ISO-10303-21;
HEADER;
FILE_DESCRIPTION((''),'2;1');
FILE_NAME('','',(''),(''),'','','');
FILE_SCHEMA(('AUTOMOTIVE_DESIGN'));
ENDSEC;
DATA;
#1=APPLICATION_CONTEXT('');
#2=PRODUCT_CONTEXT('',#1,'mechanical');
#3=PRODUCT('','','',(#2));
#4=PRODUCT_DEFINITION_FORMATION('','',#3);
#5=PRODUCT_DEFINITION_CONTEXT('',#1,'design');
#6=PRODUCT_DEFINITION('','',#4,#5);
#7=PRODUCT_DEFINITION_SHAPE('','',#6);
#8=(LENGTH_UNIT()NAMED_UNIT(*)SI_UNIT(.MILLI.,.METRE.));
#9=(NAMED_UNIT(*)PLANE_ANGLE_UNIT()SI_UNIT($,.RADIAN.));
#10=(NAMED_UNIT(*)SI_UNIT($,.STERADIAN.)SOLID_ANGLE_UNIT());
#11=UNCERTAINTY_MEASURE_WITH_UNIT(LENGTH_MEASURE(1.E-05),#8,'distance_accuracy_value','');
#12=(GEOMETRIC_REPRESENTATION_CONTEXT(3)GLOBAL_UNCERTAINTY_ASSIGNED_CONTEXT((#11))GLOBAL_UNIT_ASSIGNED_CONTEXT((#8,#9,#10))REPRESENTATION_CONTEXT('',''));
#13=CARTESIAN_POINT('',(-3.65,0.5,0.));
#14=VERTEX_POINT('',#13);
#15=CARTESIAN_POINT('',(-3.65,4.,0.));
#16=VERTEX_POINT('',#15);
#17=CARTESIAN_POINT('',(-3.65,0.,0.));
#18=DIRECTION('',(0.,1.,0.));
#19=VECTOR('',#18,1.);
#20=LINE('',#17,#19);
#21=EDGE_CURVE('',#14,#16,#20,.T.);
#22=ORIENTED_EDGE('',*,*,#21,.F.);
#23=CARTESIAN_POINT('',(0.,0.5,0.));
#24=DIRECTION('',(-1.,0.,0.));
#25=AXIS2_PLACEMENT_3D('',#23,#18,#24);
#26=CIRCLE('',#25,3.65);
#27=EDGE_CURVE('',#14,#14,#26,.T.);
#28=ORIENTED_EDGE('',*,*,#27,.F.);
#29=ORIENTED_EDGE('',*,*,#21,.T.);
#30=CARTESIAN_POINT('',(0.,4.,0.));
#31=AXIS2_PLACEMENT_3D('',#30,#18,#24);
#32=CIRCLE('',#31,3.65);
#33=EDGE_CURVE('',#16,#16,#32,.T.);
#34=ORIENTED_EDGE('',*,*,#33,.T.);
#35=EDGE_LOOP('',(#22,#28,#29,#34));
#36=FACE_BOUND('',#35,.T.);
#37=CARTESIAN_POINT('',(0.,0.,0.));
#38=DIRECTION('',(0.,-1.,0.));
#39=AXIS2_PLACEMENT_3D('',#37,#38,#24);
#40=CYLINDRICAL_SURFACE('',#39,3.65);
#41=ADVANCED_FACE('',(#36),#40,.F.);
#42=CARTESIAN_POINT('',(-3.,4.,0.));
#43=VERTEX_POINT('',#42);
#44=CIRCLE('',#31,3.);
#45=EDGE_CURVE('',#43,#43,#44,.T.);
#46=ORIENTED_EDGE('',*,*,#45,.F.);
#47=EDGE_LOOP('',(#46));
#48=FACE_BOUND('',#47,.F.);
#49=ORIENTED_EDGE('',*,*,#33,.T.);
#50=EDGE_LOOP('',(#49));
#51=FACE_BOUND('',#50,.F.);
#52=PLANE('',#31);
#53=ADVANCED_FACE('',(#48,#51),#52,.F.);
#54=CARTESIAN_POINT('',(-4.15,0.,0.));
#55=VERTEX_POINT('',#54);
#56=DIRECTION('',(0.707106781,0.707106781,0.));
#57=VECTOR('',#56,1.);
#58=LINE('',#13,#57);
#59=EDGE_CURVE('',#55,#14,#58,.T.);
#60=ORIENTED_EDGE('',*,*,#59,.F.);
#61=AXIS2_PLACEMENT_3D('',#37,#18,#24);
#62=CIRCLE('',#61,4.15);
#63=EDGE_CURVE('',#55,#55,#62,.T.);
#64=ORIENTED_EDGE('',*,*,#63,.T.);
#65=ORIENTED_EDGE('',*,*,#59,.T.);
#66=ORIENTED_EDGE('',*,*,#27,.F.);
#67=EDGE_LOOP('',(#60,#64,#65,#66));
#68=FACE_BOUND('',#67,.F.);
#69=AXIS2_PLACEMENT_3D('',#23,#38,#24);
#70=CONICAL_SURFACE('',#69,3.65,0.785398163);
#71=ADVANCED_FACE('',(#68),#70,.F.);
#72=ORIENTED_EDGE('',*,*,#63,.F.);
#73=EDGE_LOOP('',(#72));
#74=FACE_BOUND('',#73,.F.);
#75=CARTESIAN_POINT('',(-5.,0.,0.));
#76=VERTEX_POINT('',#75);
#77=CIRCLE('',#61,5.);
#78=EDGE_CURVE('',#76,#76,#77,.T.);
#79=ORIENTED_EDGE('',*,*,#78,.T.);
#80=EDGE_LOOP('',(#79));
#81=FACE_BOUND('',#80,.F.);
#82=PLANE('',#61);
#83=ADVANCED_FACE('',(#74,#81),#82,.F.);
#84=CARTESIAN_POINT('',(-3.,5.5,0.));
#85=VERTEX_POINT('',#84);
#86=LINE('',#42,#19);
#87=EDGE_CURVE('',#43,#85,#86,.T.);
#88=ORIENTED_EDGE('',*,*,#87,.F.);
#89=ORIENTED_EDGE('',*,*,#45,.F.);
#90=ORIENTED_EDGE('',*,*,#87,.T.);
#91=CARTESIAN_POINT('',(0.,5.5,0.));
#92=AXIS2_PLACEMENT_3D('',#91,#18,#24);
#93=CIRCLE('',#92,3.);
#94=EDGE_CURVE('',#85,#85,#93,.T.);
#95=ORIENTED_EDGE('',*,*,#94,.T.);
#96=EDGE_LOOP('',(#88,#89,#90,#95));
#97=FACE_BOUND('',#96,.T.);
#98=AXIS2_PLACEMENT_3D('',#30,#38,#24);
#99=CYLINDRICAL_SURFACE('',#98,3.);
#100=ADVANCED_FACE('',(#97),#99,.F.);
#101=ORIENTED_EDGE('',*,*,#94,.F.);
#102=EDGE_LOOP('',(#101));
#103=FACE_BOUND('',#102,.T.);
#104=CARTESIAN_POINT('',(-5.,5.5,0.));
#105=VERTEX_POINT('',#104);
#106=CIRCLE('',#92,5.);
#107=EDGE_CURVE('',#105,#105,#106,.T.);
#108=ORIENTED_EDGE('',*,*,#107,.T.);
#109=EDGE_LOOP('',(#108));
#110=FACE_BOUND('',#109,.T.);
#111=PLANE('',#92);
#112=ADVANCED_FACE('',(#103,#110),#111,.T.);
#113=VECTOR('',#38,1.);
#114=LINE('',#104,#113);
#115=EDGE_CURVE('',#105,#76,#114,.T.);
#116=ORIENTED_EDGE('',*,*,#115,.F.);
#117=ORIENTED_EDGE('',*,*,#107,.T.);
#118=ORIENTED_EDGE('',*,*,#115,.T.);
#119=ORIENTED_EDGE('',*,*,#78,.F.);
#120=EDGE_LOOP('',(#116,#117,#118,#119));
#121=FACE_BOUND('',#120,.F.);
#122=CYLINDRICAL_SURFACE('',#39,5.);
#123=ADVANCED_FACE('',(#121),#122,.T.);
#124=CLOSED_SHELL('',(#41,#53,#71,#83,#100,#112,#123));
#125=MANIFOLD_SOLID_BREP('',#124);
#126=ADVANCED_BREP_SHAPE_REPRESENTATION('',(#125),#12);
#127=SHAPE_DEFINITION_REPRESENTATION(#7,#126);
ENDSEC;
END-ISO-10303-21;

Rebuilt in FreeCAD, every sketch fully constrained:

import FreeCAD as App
import Part
import Sketcher
Q = App.Units.Quantity


def edges_at(feature, points):
    """Names of the edges that pass closest to the given points."""
    edges = feature.Shape.Edges
    near = lambda p: min(range(len(edges)), key=lambda i: edges[i].distToShape(Part.Vertex(*p))[0])
    return sorted({f"Edge{near(p) + 1}" for p in points})

doc = App.newDocument("Part")
body = doc.addObject("PartDesign::Body", "Body")

sketch1 = body.newObject("Sketcher::SketchObject", "Sketch")
sketch1.AttachmentSupport = (doc.getObject("XZ_Plane"), [""])
sketch1.MapMode = "FlatFace"
sketch1.addGeometry(Part.Circle(App.Vector(0, 0, 0), App.Vector(0, 0, 1), 5), False)
sketch1.addGeometry(Part.Circle(App.Vector(0, 0, 0), App.Vector(0, 0, 1), 3.6), False)
sketch1.addConstraint(Sketcher.Constraint("Coincident", 0, 3, -1, 1))
sketch1.addConstraint(Sketcher.Constraint("Coincident", 1, 3, -1, 1))
sketch1.addConstraint(Sketcher.Constraint("Diameter", 0, Q("10 mm")))
sketch1.addConstraint(Sketcher.Constraint("Diameter", 1, Q("7.3 mm")))
pad1 = body.newObject("PartDesign::Pad", "Pad")
pad1.Profile = sketch1
pad1.Length = 4
pad1.Reversed = True

sketch2 = body.newObject("Sketcher::SketchObject", "Sketch001")
sketch2.AttachmentSupport = (doc.getObject("XZ_Plane"), [""])
sketch2.MapMode = "FlatFace"
sketch2.AttachmentOffset = App.Placement(App.Vector(0, 0, -4), App.Rotation())
sketch2.addGeometry(Part.Circle(App.Vector(0, 0, 0), App.Vector(0, 0, 1), 5), False)
sketch2.addGeometry(Part.Circle(App.Vector(0, 0, 0), App.Vector(0, 0, 1), 3), False)
sketch2.addConstraint(Sketcher.Constraint("Coincident", 0, 3, -1, 1))
sketch2.addConstraint(Sketcher.Constraint("Coincident", 1, 3, -1, 1))
sketch2.addConstraint(Sketcher.Constraint("Diameter", 0, Q("10 mm")))
sketch2.addConstraint(Sketcher.Constraint("Diameter", 1, Q("6 mm")))
pad2 = body.newObject("PartDesign::Pad", "Pad001")
pad2.Profile = sketch2
pad2.Length = 1.5
pad2.Reversed = True
doc.recompute()

chamfer = body.newObject("PartDesign::Chamfer", "Chamfer")
chamfer.Base = (pad2, edges_at(pad2, [(3.65, 0, 0)]))
chamfer.Size = 0.5

doc.recompute()
